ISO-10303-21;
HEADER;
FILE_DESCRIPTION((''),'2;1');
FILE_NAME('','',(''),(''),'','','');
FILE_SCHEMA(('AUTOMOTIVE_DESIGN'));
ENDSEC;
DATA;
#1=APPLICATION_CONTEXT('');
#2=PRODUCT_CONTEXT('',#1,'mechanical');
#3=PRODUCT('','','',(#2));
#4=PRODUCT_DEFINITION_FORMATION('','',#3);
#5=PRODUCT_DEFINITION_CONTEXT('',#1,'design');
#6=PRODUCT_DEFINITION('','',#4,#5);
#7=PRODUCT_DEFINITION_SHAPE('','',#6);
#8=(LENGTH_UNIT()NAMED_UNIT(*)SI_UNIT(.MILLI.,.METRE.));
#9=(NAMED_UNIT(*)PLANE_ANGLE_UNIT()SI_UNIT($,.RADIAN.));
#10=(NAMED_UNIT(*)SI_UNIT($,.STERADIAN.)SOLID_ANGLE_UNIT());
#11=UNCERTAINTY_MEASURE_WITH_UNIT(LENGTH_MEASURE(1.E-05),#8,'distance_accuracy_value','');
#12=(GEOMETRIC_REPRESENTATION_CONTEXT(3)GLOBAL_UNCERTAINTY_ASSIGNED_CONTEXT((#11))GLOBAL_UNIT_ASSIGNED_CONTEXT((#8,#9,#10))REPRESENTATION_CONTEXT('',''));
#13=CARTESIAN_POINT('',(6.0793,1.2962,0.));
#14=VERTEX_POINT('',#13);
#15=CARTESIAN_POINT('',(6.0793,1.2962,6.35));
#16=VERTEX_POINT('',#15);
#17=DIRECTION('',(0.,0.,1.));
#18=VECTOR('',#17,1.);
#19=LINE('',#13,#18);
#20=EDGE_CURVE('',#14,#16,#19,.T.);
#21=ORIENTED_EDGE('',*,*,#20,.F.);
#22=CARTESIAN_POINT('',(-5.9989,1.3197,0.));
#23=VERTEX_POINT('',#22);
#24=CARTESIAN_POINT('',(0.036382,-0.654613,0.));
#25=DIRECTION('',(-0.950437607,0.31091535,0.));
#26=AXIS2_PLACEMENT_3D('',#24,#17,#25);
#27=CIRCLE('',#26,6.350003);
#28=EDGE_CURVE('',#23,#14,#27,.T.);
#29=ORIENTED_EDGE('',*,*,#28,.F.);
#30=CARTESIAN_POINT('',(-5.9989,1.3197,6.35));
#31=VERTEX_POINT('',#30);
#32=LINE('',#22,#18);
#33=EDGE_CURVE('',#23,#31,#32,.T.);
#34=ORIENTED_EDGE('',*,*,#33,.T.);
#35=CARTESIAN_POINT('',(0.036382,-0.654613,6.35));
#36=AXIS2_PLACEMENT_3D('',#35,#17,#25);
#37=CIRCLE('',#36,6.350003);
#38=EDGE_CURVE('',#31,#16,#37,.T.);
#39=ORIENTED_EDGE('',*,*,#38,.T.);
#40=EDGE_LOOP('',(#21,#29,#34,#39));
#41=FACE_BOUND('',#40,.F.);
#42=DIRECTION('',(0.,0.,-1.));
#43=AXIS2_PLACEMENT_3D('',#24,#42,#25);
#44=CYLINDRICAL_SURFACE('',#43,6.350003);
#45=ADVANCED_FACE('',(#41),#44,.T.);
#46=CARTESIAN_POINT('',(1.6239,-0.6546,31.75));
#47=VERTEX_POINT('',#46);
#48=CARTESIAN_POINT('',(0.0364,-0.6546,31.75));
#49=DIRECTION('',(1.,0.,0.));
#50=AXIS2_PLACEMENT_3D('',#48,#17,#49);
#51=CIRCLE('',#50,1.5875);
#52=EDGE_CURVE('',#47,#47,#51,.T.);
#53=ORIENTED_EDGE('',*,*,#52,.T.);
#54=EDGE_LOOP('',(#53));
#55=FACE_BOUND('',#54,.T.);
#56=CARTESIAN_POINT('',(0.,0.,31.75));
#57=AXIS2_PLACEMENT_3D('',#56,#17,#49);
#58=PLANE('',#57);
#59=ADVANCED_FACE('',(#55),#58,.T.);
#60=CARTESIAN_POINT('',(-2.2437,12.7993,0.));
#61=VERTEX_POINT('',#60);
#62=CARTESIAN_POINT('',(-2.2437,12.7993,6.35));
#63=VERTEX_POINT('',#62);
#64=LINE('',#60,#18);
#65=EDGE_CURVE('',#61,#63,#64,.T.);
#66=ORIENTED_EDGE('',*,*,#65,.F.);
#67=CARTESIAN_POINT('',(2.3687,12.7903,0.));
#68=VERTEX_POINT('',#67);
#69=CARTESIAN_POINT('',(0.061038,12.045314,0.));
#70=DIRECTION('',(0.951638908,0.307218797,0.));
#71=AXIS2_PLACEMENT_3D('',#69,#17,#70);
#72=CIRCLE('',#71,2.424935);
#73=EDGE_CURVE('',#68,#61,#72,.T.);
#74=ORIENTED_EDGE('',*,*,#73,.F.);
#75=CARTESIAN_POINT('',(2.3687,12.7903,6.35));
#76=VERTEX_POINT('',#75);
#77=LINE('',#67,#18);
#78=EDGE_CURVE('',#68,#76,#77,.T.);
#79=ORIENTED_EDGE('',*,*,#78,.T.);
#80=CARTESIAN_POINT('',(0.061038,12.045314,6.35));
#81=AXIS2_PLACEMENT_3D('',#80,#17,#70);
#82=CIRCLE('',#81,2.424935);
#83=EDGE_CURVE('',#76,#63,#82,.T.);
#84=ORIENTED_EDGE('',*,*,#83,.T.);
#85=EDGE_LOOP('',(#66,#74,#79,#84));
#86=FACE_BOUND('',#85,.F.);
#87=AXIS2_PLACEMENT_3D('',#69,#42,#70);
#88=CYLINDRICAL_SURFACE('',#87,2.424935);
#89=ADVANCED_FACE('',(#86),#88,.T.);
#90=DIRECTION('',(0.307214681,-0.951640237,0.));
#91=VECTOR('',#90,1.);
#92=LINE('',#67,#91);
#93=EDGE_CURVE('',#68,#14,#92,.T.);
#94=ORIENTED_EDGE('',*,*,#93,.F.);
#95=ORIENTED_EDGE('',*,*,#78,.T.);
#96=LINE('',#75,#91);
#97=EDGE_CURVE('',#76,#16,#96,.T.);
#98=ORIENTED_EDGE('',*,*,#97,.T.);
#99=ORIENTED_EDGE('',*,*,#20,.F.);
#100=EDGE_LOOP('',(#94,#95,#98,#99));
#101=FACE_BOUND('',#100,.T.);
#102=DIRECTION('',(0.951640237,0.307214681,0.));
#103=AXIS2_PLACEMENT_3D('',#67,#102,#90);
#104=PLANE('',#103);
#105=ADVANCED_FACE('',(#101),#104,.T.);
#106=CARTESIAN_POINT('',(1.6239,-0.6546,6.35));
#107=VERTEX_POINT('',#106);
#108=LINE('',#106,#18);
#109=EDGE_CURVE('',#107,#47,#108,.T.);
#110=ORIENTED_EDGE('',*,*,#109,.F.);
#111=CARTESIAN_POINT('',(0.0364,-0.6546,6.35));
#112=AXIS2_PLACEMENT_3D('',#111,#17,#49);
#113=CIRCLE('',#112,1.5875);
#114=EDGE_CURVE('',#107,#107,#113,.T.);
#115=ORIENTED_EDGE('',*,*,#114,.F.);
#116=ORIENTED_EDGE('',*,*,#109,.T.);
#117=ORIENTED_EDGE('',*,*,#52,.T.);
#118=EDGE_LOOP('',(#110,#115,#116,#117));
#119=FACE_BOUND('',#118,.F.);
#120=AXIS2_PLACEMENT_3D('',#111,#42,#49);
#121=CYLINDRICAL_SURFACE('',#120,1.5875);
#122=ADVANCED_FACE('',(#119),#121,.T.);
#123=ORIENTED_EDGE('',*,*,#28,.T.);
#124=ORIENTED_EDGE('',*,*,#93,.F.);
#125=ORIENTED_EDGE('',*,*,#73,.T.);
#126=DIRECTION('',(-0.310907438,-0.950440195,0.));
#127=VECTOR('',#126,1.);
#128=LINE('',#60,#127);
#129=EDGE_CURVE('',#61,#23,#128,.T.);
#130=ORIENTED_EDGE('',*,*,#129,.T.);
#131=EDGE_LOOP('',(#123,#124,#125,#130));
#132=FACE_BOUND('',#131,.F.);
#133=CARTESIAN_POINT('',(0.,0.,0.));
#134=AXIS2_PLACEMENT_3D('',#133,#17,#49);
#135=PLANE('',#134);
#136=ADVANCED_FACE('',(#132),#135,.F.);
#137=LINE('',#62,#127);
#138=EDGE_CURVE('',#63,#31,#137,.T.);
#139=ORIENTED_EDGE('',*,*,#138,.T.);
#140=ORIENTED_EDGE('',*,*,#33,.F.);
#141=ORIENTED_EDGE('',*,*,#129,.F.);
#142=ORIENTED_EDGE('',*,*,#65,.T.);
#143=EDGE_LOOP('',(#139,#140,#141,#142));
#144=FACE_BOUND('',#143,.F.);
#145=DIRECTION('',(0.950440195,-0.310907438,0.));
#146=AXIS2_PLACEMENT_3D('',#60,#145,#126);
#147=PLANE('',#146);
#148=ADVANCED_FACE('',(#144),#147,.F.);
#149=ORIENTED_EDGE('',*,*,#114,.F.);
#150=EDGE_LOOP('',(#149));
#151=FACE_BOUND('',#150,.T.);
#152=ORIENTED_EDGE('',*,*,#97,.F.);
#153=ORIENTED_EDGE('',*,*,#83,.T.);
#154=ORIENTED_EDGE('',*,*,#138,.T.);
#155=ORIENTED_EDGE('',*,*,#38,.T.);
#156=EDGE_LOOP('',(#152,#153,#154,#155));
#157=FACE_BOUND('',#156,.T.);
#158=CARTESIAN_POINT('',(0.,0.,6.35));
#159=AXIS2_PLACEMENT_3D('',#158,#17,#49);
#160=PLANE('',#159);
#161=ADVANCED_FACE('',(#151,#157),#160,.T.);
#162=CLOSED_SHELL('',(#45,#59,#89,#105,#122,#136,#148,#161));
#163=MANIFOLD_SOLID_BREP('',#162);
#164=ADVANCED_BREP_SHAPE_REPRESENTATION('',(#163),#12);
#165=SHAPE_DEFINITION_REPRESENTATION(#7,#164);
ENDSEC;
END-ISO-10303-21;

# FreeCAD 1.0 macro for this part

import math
import FreeCAD as App
import Part
import Sketcher
Q = App.Units.Quantity

doc = App.newDocument("Part")
body = doc.addObject("PartDesign::Body", "Body")

sketch1 = doc.addObject("Sketcher::SketchObject", "Sketch")
body.addObject(sketch1)
sketch1.AttachmentSupport = (doc.XY_Plane, [""])
sketch1.MapMode = "FlatFace"
sketch1.addGeometry([
    Part.LineSegment(App.Vector(-2.2, 12.8, 0), App.Vector(-6, 1.3, 0)),
    Part.ArcOfCircle(Part.Circle(App.Vector(0, -0.7, 0), App.Vector(0, 0, 1), 6.4), math.radians(162), math.radians(378)),
    Part.LineSegment(App.Vector(6.1, 1.3, 0), App.Vector(2.4, 12.8, 0)),
    Part.ArcOfCircle(Part.Circle(App.Vector(0.1, 12, 0), App.Vector(0, 0, 1), 2.4), math.radians(18), math.radians(162)),
], False)
sketch1.addConstraint([
    Sketcher.Constraint("Tangent", 0, 2, 1, 1),
    Sketcher.Constraint("Tangent", 1, 2, 2, 1),
    Sketcher.Constraint("Tangent", 2, 2, 3, 1),
    Sketcher.Constraint("Tangent", 3, 2, 0, 1),
    Sketcher.Constraint("Radius", 1, Q("0.25 in")),
    Sketcher.Constraint("DistanceY", 1, 3, 3, 3, Q("0.5 in")),
    Sketcher.Constraint("Radius", 3, Q("2.4248 mm")),
    Sketcher.Constraint("DistanceX", -1, 1, 3, 3, Q("0.0024 in")),
    Sketcher.Constraint("DistanceY", -1, 1, 3, 2, Q("0.5039 in")),
    Sketcher.Constraint("DistanceX", 0, 2, 1, 3, Q("0.2376 in")),
])
pad1 = doc.addObject("PartDesign::Pad", "Pad")
body.addObject(pad1)
pad1.Profile = sketch1
pad1.Length = Q("0.25 in")

sketch2 = doc.addObject("Sketcher::SketchObject", "Sketch001")
body.addObject(sketch2)
sketch2.AttachmentSupport = (doc.XY_Plane, [""])
sketch2.MapMode = "FlatFace"
sketch2.AttachmentOffset = App.Placement(App.Vector(0, 0, 0.25 * 25.4), App.Rotation())
sketch2.addGeometry(Part.Circle(App.Vector(0, -0.7, 0), App.Vector(0, 0, 1), 1.6), False)
sketch2.addConstraint([
    Sketcher.Constraint("Diameter", 0, Q("0.125 in")),
    Sketcher.Constraint("DistanceX", -1, 1, 0, 3, Q("0.0364 mm")),
    Sketcher.Constraint("DistanceY", 0, 3, -1, 1, Q("0.6546 mm")),
])
pad2 = doc.addObject("PartDesign::Pad", "Pad001")
body.addObject(pad2)
pad2.Profile = sketch2
pad2.Length = Q("1 in")

doc.recompute()
